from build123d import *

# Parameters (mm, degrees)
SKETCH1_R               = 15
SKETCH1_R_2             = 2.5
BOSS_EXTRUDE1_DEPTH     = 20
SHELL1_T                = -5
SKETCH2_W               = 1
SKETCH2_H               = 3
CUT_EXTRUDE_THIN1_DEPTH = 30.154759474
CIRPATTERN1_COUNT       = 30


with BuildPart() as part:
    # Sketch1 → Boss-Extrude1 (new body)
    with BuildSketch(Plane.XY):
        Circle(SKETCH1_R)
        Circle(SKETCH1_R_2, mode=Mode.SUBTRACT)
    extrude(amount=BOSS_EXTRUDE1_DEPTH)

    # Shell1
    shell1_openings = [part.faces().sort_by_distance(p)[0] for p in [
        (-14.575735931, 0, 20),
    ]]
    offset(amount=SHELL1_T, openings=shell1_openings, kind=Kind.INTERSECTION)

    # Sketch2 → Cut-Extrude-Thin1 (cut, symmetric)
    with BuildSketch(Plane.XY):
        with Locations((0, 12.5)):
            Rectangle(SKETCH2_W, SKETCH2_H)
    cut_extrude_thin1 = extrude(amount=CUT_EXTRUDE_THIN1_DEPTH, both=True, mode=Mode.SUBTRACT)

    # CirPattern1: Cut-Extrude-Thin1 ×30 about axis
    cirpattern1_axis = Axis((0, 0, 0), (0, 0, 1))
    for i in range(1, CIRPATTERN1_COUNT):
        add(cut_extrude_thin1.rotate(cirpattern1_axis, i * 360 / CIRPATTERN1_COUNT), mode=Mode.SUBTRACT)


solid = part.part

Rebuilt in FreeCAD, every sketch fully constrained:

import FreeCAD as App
import Part
import Sketcher
from FreeCAD import Vector


def faces_at(feature, points):
    """Names of the faces that lie closest to the given points."""
    faces = feature.Shape.Faces
    near = lambda p: min(range(len(faces)), key=lambda i: faces[i].distToShape(Part.Vertex(*p))[0])
    return sorted({f"Face{near(p) + 1}" for p in points})


def add_polygon(sketch, points):
    """Adds a closed chain of lines whose ends are joined by coincident constraints."""
    first, n = sketch.GeometryCount, len(points)
    for a, b in zip(points, points[1:] + points[:1]):
        sketch.addGeometry(Part.LineSegment(App.Vector(*a, 0), App.Vector(*b, 0)), False)
    for i in range(n):
        sketch.addConstraint(Sketcher.Constraint("Coincident", first + i, 2, first + (i + 1) % n, 1))

doc = App.newDocument("Part")
body = doc.addObject("PartDesign::Body", "Body")

# Sketch on XY plane
sketch1 = body.newObject("Sketcher::SketchObject", "Sketch")
sketch1.AttachmentSupport = (doc.getObject("XY_Plane"), [""])
sketch1.MapMode = "FlatFace"
sketch1.addGeometry([
    Part.Circle(Vector(0, 0, 0), Vector(0, 0, 1), 15),
    Part.Circle(Vector(0, 0, 0), Vector(0, 0, 1), 2.5),
], False)
sketch1.addConstraint([
    Sketcher.Constraint("Coincident", 0, 3, -1, 1),
    Sketcher.Constraint("Coincident", 1, 3, -1, 1),
    Sketcher.Constraint("Diameter", 0, 30.0),
    Sketcher.Constraint("Diameter", 1, 5.0),
])
pad1 = body.newObject("PartDesign::Pad", "Pad")
pad1.Profile = sketch1
pad1.Length = 20
doc.recompute()

thickness = body.newObject("PartDesign::Thickness", "Thickness")
thickness.Base = (pad1, faces_at(pad1, [(-6, -6, 20)]))
thickness.Value = 5
thickness.Reversed = True
thickness.Join = "Intersection"

# Sketch on XY plane
sketch2 = body.newObject("Sketcher::SketchObject", "Sketch001")
sketch2.AttachmentSupport = (doc.getObject("XY_Plane"), [""])
sketch2.MapMode = "FlatFace"
add_polygon(sketch2, [(-0.5, 14), (-0.5, 11), (0.5, 11), (0.5, 14)])  # lines 0-3
sketch2.addConstraint([
    Sketcher.Constraint("Vertical", 0),
    Sketcher.Constraint("Horizontal", 1),
    Sketcher.Constraint("Vertical", 2),
    Sketcher.Constraint("Horizontal", 3),
    Sketcher.Constraint("DistanceX", 1, 1, 1, 2, 1.0),
    Sketcher.Constraint("DistanceY", 0, 2, 0, 1, 3.0),
    Sketcher.Constraint("DistanceY", -1, 1, 0, 2, 11.0),
    Sketcher.Constraint("DistanceX", 0, 2, -1, 1, 0.5),
])
pocket1 = body.newObject("PartDesign::Pocket", "Pocket")
pocket1.Profile = sketch2
pocket1.Length = 60.309519
pocket1.Midplane = True
doc.recompute()

polarpattern = body.newObject("PartDesign::PolarPattern", "PolarPattern")
polarpattern.Originals = [pocket1]
polarpattern.Axis = (doc.getObject("Z_Axis"), [""])
polarpattern.Angle = 360
polarpattern.Occurrences = 30
body.Tip = polarpattern

doc.recompute()
